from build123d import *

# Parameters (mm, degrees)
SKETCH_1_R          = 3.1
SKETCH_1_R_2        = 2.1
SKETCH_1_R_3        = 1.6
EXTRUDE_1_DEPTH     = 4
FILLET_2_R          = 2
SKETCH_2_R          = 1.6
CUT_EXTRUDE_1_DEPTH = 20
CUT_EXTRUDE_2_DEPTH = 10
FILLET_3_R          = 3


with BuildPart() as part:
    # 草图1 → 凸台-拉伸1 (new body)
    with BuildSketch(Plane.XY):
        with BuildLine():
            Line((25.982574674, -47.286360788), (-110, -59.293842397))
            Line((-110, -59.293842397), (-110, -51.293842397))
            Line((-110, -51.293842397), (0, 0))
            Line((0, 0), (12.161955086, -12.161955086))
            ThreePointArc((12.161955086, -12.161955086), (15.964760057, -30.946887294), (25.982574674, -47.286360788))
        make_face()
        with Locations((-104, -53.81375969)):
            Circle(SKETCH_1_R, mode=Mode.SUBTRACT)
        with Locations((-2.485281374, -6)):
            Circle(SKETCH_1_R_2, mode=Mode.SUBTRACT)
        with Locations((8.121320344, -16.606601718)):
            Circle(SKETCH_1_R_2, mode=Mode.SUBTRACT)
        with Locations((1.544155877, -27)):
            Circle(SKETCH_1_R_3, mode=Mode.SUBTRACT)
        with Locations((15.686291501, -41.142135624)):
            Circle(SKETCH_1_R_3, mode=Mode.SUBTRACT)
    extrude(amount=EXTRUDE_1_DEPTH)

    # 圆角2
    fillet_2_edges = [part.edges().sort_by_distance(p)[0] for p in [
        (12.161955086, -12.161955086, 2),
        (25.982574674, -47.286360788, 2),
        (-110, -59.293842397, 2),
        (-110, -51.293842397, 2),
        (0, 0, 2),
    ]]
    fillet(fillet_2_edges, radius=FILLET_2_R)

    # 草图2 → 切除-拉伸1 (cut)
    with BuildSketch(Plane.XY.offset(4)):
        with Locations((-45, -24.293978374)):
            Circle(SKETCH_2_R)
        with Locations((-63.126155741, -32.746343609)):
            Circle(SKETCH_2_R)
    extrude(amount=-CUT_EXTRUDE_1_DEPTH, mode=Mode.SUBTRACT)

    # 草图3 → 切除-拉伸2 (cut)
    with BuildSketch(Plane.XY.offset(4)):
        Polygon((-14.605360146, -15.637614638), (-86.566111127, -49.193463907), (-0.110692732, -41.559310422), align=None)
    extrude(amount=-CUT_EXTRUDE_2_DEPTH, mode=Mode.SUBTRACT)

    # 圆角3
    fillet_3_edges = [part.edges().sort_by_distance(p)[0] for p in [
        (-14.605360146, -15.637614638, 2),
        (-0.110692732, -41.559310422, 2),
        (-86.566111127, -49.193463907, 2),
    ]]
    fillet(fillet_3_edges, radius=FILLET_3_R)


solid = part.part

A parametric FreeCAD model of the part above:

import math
import FreeCAD as App
import Part
import Sketcher
from FreeCAD import Vector
Q = App.Units.Quantity


def edges_at(feature, points):
    """Names of the edges that pass closest to the given points."""
    edges = feature.Shape.Edges
    near = lambda p: min(range(len(edges)), key=lambda i: edges[i].distToShape(Part.Vertex(*p))[0])
    return sorted({f"Edge{near(p) + 1}" for p in points})


def add_polygon(sketch, points):
    """Adds a closed chain of lines whose ends are joined by coincident constraints."""
    first, n = sketch.GeometryCount, len(points)
    for a, b in zip(points, points[1:] + points[:1]):
        sketch.addGeometry(Part.LineSegment(App.Vector(*a, 0), App.Vector(*b, 0)), False)
    for i in range(n):
        sketch.addConstraint(Sketcher.Constraint("Coincident", first + i, 2, first + (i + 1) % n, 1))

doc = App.newDocument("Part")
body = doc.addObject("PartDesign::Body", "Body")

sketch1 = body.newObject("Sketcher::SketchObject", "Sketch")
sketch1.AttachmentSupport = (doc.getObject("XY_Plane"), [""])
sketch1.MapMode = "FlatFace"
sketch1.addGeometry([
    Part.LineSegment(Vector(-110, -59.3, 0), Vector(26, -47.3, 0)),
    Part.ArcOfCircle(Part.Circle(Vector(67.1, -10.8, 0), Vector(0, 0, 1), 55), math.radians(-179), math.radians(-138)),
    Part.LineSegment(Vector(12.2, -12.2, 0), Vector(0, 0, 0)),
    Part.LineSegment(Vector(0, 0, 0), Vector(-110, -51.3, 0)),
    Part.LineSegment(Vector(-110, -51.3, 0), Vector(-110, -59.3, 0)),
    Part.Circle(Vector(15.7, -41.1, 0), Vector(0, 0, 1), 1.6),
    Part.Circle(Vector(-104, -53.8, 0), Vector(0, 0, 1), 3.1),
    Part.Circle(Vector(1.5, -27, 0), Vector(0, 0, 1), 1.6),
    Part.Circle(Vector(8.1, -16.6, 0), Vector(0, 0, 1), 2.1),
    Part.Circle(Vector(-2.5, -6, 0), Vector(0, 0, 1), 2.1),
], False)
sketch1.addConstraint([
    Sketcher.Constraint("Coincident", 0, 2, 1, 2),
    Sketcher.Constraint("Coincident", 1, 1, 2, 1),
    Sketcher.Constraint("Coincident", 2, 2, 3, 1),
    Sketcher.Constraint("Coincident", 3, 2, 4, 1),
    Sketcher.Constraint("Coincident", 4, 2, 0, 1),
    Sketcher.Constraint("Vertical", 4),
    Sketcher.Constraint("Coincident", 2, 2, -1, 1),
    Sketcher.Constraint("Equal", 5, 7),
    Sketcher.Constraint("Equal", 8, 9),
    Sketcher.Constraint("Radius", 1, 55.0),
    Sketcher.Constraint("Diameter", 5, 3.2),
    Sketcher.Constraint("Diameter", 6, 6.2),
    Sketcher.Constraint("Diameter", 8, 4.2),
    Sketcher.Constraint("DistanceY", 4, 2, 4, 1, 8.0),
    Sketcher.Constraint("Angle", 2, Q("135 deg")),
    Sketcher.Constraint("Angle", 3, Q("-155 deg")),
    Sketcher.Constraint("DistanceX", 6, 3, -1, 1, 104.0),
    Sketcher.Constraint("DistanceY", 7, 3, -1, 1, 27.0),
    Sketcher.Constraint("DistanceY", 9, 3, -1, 1, 6.0),
    Sketcher.Constraint("DistanceX", 3, 2, -1, 1, 110.0),
    Sketcher.Constraint("Distance", 2, 17.199602),
    Sketcher.Constraint("DistanceX", -1, 1, 1, 3, 67.145301),
    Sketcher.Constraint("DistanceY", 8, 3, -1, 1, 16.606602),
    Sketcher.Constraint("DistanceY", 6, 3, 1, 3, 43.0052),
    Sketcher.Constraint("DistanceX", 9, 3, 8, 3, 10.606602),
    Sketcher.Constraint("DistanceY", 0, 2, 1, 3, 36.477801),
    Sketcher.Constraint("DistanceX", 7, 3, 1, 1, 10.617799),
    Sketcher.Constraint("DistanceX", -1, 1, 5, 3, 15.686292),
    Sketcher.Constraint("DistanceX", -1, 1, 8, 3, 8.12132),
    Sketcher.Constraint("DistanceY", 5, 3, 1, 1, 28.980181),
])
pad1 = body.newObject("PartDesign::Pad", "Pad")
pad1.Profile = sketch1
pad1.Length = 4
doc.recompute()

fillet = body.newObject("PartDesign::Fillet", "Fillet")
fillet.Base = (pad1, edges_at(pad1, [
    (12.162, -12.162, 2),
    (25.983, -47.286, 2),
    (-110, -59.294, 2),
    (-110, -51.294, 2),
    (0, 0, 2),
]))
fillet.Radius = 2

sketch2 = body.newObject("Sketcher::SketchObject", "Sketch001")
sketch2.AttachmentSupport = (doc.getObject("XY_Plane"), [""])
sketch2.MapMode = "FlatFace"
sketch2.AttachmentOffset = App.Placement(Vector(0, 0, 4), App.Rotation())
sketch2.addGeometry([
    Part.Circle(Vector(-45, -24.3, 0), Vector(0, 0, 1), 1.6),
    Part.Circle(Vector(-63.1, -32.7, 0), Vector(0, 0, 1), 1.6),
], False)
sketch2.addConstraint([
    Sketcher.Constraint("Equal", 0, 1),
    Sketcher.Constraint("Diameter", 0, 3.2),
    Sketcher.Constraint("DistanceX", 0, 3, -1, 1, 45.0),
    Sketcher.Constraint("DistanceY", 0, 3, -1, 1, 24.293978),
    Sketcher.Constraint("DistanceX", 1, 3, -1, 1, 63.126156),
    Sketcher.Constraint("DistanceY", 1, 3, -1, 1, 32.746344),
])
pocket1 = body.newObject("PartDesign::Pocket", "Pocket")
pocket1.Profile = sketch2
pocket1.Length = 20

sketch3 = body.newObject("Sketcher::SketchObject", "Sketch002")
sketch3.AttachmentSupport = (doc.getObject("XY_Plane"), [""])
sketch3.MapMode = "FlatFace"
sketch3.AttachmentOffset = App.Placement(Vector(0, 0, 4), App.Rotation())
add_polygon(sketch3, [(-15, -16), (-87, -49), (0, -42)])
sketch3.addConstraint([
    Sketcher.Constraint("Angle", 0, Q("-155 deg")),
    Sketcher.Constraint("DistanceX", 0, 2, -1, 1, 86.566111),
    Sketcher.Constraint("DistanceY", 1, 2, -1, 1, 41.55931),
    Sketcher.Constraint("DistanceX", 2, 2, -1, 1, 14.60536),
    Sketcher.Constraint("DistanceX", 0, 2, 1, 2, 86.455418),
    Sketcher.Constraint("Distance", 1, 86.791818),
])
pocket2 = body.newObject("PartDesign::Pocket", "Pocket001")
pocket2.Profile = sketch3
pocket2.Length = 10
doc.recompute()

fillet2 = body.newObject("PartDesign::Fillet", "Fillet001")
fillet2.Base = (pocket2, edges_at(pocket2, [(-14.605, -15.638, 2), (-0.111, -41.559, 2), (-86.566, -49.193, 2)]))
fillet2.Radius = 3

doc.recompute()
